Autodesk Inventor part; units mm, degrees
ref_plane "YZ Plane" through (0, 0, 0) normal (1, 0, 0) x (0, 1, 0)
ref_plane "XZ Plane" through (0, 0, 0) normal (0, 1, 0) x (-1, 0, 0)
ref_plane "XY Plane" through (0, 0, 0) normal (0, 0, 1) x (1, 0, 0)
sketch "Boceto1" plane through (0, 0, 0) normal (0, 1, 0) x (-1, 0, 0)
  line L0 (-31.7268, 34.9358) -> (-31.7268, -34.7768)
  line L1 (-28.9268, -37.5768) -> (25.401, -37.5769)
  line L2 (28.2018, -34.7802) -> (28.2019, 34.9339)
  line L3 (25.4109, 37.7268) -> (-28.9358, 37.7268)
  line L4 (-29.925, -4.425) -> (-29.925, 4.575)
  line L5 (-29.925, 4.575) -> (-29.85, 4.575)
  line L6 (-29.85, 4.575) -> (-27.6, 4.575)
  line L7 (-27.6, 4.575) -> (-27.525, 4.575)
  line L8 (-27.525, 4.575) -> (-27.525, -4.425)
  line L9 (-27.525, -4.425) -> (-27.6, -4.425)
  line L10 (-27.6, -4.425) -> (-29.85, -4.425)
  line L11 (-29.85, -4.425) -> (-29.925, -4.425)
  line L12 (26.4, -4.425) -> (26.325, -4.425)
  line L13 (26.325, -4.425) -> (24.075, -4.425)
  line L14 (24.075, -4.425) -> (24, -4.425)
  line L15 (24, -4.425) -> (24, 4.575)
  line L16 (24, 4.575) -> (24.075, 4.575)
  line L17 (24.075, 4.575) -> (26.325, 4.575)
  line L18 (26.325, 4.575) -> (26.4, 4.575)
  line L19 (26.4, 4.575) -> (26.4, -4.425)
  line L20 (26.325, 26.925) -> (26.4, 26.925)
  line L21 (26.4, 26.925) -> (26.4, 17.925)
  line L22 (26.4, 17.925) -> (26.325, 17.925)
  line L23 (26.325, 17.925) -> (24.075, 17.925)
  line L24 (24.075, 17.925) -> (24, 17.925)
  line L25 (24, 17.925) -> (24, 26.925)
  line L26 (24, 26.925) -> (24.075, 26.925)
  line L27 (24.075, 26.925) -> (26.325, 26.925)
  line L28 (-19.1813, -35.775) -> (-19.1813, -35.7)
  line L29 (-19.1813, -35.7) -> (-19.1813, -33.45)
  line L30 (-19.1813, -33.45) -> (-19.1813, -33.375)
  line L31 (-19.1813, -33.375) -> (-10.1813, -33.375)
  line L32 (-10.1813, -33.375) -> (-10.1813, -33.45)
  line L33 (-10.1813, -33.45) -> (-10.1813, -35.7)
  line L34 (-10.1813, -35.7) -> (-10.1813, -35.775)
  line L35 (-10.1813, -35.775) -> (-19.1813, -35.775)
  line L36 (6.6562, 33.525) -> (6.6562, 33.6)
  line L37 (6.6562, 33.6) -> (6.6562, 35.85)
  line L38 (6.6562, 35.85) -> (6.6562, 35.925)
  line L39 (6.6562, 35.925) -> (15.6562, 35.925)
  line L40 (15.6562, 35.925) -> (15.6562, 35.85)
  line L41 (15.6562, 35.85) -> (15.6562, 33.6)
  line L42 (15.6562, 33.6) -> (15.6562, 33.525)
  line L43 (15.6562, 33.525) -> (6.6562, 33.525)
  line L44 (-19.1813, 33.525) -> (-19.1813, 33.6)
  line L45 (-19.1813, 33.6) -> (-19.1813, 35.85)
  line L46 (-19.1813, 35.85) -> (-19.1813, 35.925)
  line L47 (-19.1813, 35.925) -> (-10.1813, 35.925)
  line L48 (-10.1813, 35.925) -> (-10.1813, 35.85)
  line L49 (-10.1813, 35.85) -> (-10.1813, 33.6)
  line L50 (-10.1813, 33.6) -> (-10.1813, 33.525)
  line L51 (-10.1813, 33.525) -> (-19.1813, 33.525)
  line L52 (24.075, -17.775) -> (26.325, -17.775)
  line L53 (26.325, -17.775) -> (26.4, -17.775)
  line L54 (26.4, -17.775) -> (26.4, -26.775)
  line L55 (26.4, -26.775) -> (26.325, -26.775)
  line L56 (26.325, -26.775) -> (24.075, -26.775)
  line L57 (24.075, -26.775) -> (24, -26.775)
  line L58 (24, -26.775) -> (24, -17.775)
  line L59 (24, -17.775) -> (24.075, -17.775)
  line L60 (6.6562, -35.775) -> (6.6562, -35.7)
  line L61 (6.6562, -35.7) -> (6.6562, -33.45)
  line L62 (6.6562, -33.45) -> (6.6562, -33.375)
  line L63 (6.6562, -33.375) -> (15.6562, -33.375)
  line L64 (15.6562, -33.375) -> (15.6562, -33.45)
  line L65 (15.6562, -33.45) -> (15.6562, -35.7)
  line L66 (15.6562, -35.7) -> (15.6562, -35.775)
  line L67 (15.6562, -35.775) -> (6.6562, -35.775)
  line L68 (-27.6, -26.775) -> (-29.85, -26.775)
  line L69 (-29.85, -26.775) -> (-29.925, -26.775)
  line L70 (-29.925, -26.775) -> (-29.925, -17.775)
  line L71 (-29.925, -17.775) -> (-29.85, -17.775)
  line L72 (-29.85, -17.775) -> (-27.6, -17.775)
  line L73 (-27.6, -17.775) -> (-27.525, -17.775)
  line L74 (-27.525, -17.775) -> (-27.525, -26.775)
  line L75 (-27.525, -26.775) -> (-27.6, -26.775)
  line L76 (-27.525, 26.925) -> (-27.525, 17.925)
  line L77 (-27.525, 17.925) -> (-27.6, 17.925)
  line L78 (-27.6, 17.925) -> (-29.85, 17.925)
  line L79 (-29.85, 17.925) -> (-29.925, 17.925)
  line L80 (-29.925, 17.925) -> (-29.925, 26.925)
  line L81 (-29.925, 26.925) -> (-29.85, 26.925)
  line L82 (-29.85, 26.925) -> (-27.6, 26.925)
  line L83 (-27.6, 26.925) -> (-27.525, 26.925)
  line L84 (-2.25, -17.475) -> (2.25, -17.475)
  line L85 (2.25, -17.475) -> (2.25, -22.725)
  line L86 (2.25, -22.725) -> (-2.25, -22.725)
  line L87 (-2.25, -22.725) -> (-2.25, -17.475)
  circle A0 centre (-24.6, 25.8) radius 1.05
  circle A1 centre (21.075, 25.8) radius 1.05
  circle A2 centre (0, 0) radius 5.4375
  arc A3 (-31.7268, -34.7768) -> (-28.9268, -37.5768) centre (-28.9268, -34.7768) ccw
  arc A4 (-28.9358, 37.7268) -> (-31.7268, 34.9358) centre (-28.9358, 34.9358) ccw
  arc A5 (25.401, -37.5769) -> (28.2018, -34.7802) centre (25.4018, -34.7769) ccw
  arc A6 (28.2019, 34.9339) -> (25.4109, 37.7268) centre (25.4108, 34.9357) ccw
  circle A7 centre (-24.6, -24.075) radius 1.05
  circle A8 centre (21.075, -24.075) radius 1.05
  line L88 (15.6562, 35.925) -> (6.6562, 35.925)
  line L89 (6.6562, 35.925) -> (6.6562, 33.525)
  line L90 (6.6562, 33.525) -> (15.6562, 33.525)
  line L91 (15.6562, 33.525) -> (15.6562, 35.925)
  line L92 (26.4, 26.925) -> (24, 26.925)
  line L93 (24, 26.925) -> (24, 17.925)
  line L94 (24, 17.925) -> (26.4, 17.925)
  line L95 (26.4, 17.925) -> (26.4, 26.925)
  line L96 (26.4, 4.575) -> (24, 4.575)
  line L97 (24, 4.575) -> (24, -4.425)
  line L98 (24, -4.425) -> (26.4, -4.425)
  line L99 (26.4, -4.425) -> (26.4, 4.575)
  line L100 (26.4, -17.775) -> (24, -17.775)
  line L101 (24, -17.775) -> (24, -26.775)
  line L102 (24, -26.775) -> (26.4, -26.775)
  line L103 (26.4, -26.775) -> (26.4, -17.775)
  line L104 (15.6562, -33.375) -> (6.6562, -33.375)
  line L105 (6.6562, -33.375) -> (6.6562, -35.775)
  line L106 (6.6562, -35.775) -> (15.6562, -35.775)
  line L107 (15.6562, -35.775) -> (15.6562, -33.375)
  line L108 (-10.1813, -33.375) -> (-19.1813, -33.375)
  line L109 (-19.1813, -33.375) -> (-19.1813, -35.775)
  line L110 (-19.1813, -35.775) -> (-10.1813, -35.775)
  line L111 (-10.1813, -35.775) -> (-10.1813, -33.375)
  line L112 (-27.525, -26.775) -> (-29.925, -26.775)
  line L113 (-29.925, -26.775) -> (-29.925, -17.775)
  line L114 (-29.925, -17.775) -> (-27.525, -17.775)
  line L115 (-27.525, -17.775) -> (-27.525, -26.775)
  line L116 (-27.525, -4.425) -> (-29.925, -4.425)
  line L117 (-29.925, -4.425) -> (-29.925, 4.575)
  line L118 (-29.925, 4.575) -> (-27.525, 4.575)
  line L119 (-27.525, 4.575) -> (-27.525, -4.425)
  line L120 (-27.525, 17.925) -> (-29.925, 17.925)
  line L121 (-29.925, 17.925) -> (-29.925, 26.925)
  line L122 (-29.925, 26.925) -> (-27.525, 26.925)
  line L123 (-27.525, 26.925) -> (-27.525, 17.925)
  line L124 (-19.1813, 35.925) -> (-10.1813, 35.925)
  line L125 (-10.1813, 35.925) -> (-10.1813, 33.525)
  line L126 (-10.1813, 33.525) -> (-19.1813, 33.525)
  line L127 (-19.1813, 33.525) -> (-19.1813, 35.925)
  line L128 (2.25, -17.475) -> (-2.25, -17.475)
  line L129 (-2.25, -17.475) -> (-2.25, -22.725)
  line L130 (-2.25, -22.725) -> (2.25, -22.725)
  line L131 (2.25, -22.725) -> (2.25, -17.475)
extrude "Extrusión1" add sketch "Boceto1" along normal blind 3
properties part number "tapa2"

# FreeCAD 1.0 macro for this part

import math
import FreeCAD as App
import Part
import Sketcher
from FreeCAD import Vector
Q = App.Units.Quantity

doc = App.newDocument("Part")
params = doc.addObject("Spreadsheet::Sheet", "Params")
for row, (alias, value) in enumerate([
    ("sketch1_diameter", "2.1 mm"),
    ("sketch1_radius", "2.8 mm"),
    ("sketch1_width", "9 mm"),
    ("sketch1_width2", "2.4 mm"),
    ("sketch1_width3", "4.5 mm"),
    ("pad1_length", "3 mm"),
], start=1):
    params.set(f"A{row}", alias)
    params.set(f"B{row}", "=" + value)
    params.setAlias(f"B{row}", alias)

body = doc.addObject("PartDesign::Body", "Body")

sketch1 = doc.addObject("Sketcher::SketchObject", "Sketch")
body.addObject(sketch1)
sketch1.AttachmentSupport = (doc.XZ_Plane, [""])
sketch1.MapMode = "FlatFace"
sketch1.addGeometry([
    Part.ArcOfCircle(Part.Circle(Vector(28.9, 34.9, 0), Vector(0, 0, 1), 2.8), math.radians(0), math.radians(90)),
    Part.LineSegment(Vector(31.7, 34.9, 0), Vector(31.7, -34.8, 0)),
    Part.ArcOfCircle(Part.Circle(Vector(28.9, -34.8, 0), Vector(0, 0, 1), 2.8), math.radians(-90), math.radians(0)),
    Part.LineSegment(Vector(28.9, -37.6, 0), Vector(-25.4, -37.6, 0)),
    Part.ArcOfCircle(Part.Circle(Vector(-25.4, -34.8, 0), Vector(0, 0, 1), 2.8), math.radians(-180), math.radians(-90)),
    Part.LineSegment(Vector(-28.2, -34.8, 0), Vector(-28.2, 34.9, 0)),
    Part.ArcOfCircle(Part.Circle(Vector(-25.4, 34.9, 0), Vector(0, 0, 1), 2.8), math.radians(90), math.radians(180)),
    Part.LineSegment(Vector(-25.4, 37.7, 0), Vector(28.9, 37.7, 0)),
    Part.Circle(Vector(24.6, -24.1, 0), Vector(0, 0, 1), 1.1),
    Part.LineSegment(Vector(27.5, -26.8, 0), Vector(29.9, -26.8, 0)),
    Part.LineSegment(Vector(29.9, -26.8, 0), Vector(29.9, -17.8, 0)),
    Part.LineSegment(Vector(29.9, -17.8, 0), Vector(27.5, -17.8, 0)),
    Part.LineSegment(Vector(27.5, -17.8, 0), Vector(27.5, -26.8, 0)),
    Part.LineSegment(Vector(10.2, -35.8, 0), Vector(19.2, -35.8, 0)),
    Part.LineSegment(Vector(19.2, -35.8, 0), Vector(19.2, -33.4, 0)),
    Part.LineSegment(Vector(19.2, -33.4, 0), Vector(10.2, -33.4, 0)),
    Part.LineSegment(Vector(10.2, -33.4, 0), Vector(10.2, -35.8, 0)),
    Part.LineSegment(Vector(-15.7, -35.8, 0), Vector(-6.7, -35.8, 0)),
    Part.LineSegment(Vector(-6.7, -35.8, 0), Vector(-6.7, -33.4, 0)),
    Part.LineSegment(Vector(-6.7, -33.4, 0), Vector(-15.7, -33.4, 0)),
    Part.LineSegment(Vector(-15.7, -33.4, 0), Vector(-15.7, -35.8, 0)),
    Part.LineSegment(Vector(2.2, -22.7, 0), Vector(2.2, -17.5, 0)),
    Part.LineSegment(Vector(2.2, -17.5, 0), Vector(-2.2, -17.5, 0)),
    Part.LineSegment(Vector(-2.2, -17.5, 0), Vector(-2.2, -22.7, 0)),
    Part.LineSegment(Vector(-2.2, -22.7, 0), Vector(2.2, -22.7, 0)),
    Part.Circle(Vector(-21.1, -24.1, 0), Vector(0, 0, 1), 1.1),
    Part.LineSegment(Vector(-24, -17.8, 0), Vector(-26.4, -17.8, 0)),
    Part.LineSegment(Vector(-26.4, -17.8, 0), Vector(-26.4, -26.8, 0)),
    Part.LineSegment(Vector(-26.4, -26.8, 0), Vector(-24, -26.8, 0)),
    Part.LineSegment(Vector(-24, -26.8, 0), Vector(-24, -17.8, 0)),
    Part.Circle(Vector(0, 0, 0), Vector(0, 0, 1), 5.4),
    Part.LineSegment(Vector(27.5, -4.4, 0), Vector(29.9, -4.4, 0)),
    Part.LineSegment(Vector(29.9, -4.4, 0), Vector(29.9, 4.6, 0)),
    Part.LineSegment(Vector(29.9, 4.6, 0), Vector(27.5, 4.6, 0)),
    Part.LineSegment(Vector(27.5, 4.6, 0), Vector(27.5, -4.4, 0)),
    Part.LineSegment(Vector(29.9, 26.9, 0), Vector(27.5, 26.9, 0)),
    Part.LineSegment(Vector(27.5, 26.9, 0), Vector(27.5, 17.9, 0)),
    Part.LineSegment(Vector(27.5, 17.9, 0), Vector(29.9, 17.9, 0)),
    Part.LineSegment(Vector(29.9, 17.9, 0), Vector(29.9, 26.9, 0)),
    Part.Circle(Vector(24.6, 25.8, 0), Vector(0, 0, 1), 1.1),
    Part.LineSegment(Vector(10.2, 33.5, 0), Vector(19.2, 33.5, 0)),
    Part.LineSegment(Vector(19.2, 33.5, 0), Vector(19.2, 35.9, 0)),
    Part.LineSegment(Vector(19.2, 35.9, 0), Vector(10.2, 35.9, 0)),
    Part.LineSegment(Vector(10.2, 35.9, 0), Vector(10.2, 33.5, 0)),
    Part.LineSegment(Vector(-26.4, 4.6, 0), Vector(-26.4, -4.4, 0)),
    Part.LineSegment(Vector(-26.4, -4.4, 0), Vector(-24, -4.4, 0)),
    Part.LineSegment(Vector(-24, -4.4, 0), Vector(-24, 4.6, 0)),
    Part.LineSegment(Vector(-24, 4.6, 0), Vector(-26.4, 4.6, 0)),
    Part.LineSegment(Vector(-15.7, 33.5, 0), Vector(-6.7, 33.5, 0)),
    Part.LineSegment(Vector(-6.7, 33.5, 0), Vector(-6.7, 35.9, 0)),
    Part.LineSegment(Vector(-6.7, 35.9, 0), Vector(-15.7, 35.9, 0)),
    Part.LineSegment(Vector(-15.7, 35.9, 0), Vector(-15.7, 33.5, 0)),
    Part.LineSegment(Vector(-24, 26.9, 0), Vector(-26.4, 26.9, 0)),
    Part.LineSegment(Vector(-26.4, 26.9, 0), Vector(-26.4, 17.9, 0)),
    Part.LineSegment(Vector(-26.4, 17.9, 0), Vector(-24, 17.9, 0)),
    Part.LineSegment(Vector(-24, 17.9, 0), Vector(-24, 26.9, 0)),
    Part.Circle(Vector(-21.1, 25.8, 0), Vector(0, 0, 1), 1.1),
], False)
sketch1.addConstraint([
    Sketcher.Constraint("Tangent", 0, 1, 1, 1),
    Sketcher.Constraint("Tangent", 1, 2, 2, 2),
    Sketcher.Constraint("Tangent", 2, 1, 3, 1),
    Sketcher.Constraint("Tangent", 3, 2, 4, 2),
    Sketcher.Constraint("Coincident", 4, 1, 5, 1),
    Sketcher.Constraint("Coincident", 5, 2, 6, 2),
    Sketcher.Constraint("Tangent", 6, 1, 7, 1),
    Sketcher.Constraint("Tangent", 7, 2, 0, 2),
    Sketcher.Constraint("Coincident", 9, 2, 10, 1),
    Sketcher.Constraint("Coincident", 10, 2, 11, 1),
    Sketcher.Constraint("Coincident", 11, 2, 12, 1),
    Sketcher.Constraint("Coincident", 12, 2, 9, 1),
    Sketcher.Constraint("Coincident", 13, 2, 14, 1),
    Sketcher.Constraint("Coincident", 14, 2, 15, 1),
    Sketcher.Constraint("Coincident", 15, 2, 16, 1),
    Sketcher.Constraint("Coincident", 16, 2, 13, 1),
    Sketcher.Constraint("Coincident", 17, 2, 18, 1),
    Sketcher.Constraint("Coincident", 18, 2, 19, 1),
    Sketcher.Constraint("Coincident", 19, 2, 20, 1),
    Sketcher.Constraint("Coincident", 20, 2, 17, 1),
    Sketcher.Constraint("Coincident", 21, 2, 22, 1),
    Sketcher.Constraint("Coincident", 22, 2, 23, 1),
    Sketcher.Constraint("Coincident", 23, 2, 24, 1),
    Sketcher.Constraint("Coincident", 24, 2, 21, 1),
    Sketcher.Constraint("Coincident", 26, 2, 27, 1),
    Sketcher.Constraint("Coincident", 27, 2, 28, 1),
    Sketcher.Constraint("Coincident", 28, 2, 29, 1),
    Sketcher.Constraint("Coincident", 29, 2, 26, 1),
    Sketcher.Constraint("Coincident", 31, 2, 32, 1),
    Sketcher.Constraint("Coincident", 32, 2, 33, 1),
    Sketcher.Constraint("Coincident", 33, 2, 34, 1),
    Sketcher.Constraint("Coincident", 34, 2, 31, 1),
    Sketcher.Constraint("Coincident", 35, 2, 36, 1),
    Sketcher.Constraint("Coincident", 36, 2, 37, 1),
    Sketcher.Constraint("Coincident", 37, 2, 38, 1),
    Sketcher.Constraint("Coincident", 38, 2, 35, 1),
    Sketcher.Constraint("Coincident", 40, 2, 41, 1),
    Sketcher.Constraint("Coincident", 41, 2, 42, 1),
    Sketcher.Constraint("Coincident", 42, 2, 43, 1),
    Sketcher.Constraint("Coincident", 43, 2, 40, 1),
    Sketcher.Constraint("Coincident", 44, 2, 45, 1),
    Sketcher.Constraint("Coincident", 45, 2, 46, 1),
    Sketcher.Constraint("Coincident", 46, 2, 47, 1),
    Sketcher.Constraint("Coincident", 47, 2, 44, 1),
    Sketcher.Constraint("Coincident", 48, 2, 49, 1),
    Sketcher.Constraint("Coincident", 49, 2, 50, 1),
    Sketcher.Constraint("Coincident", 50, 2, 51, 1),
    Sketcher.Constraint("Coincident", 51, 2, 48, 1),
    Sketcher.Constraint("Coincident", 52, 2, 53, 1),
    Sketcher.Constraint("Coincident", 53, 2, 54, 1),
    Sketcher.Constraint("Coincident", 54, 2, 55, 1),
    Sketcher.Constraint("Coincident", 55, 2, 52, 1),
    Sketcher.Constraint("Vertical", 1),
    Sketcher.Constraint("Horizontal", 3),
    Sketcher.Constraint("Vertical", 5),
    Sketcher.Constraint("Horizontal", 7),
    Sketcher.Constraint("Horizontal", 9),
    Sketcher.Constraint("Vertical", 10),
    Sketcher.Constraint("Horizontal", 11),
    Sketcher.Constraint("Vertical", 12),
    Sketcher.Constraint("Horizontal", 13),
    Sketcher.Constraint("Vertical", 14),
    Sketcher.Constraint("Horizontal", 15),
    Sketcher.Constraint("Vertical", 16),
    Sketcher.Constraint("Horizontal", 17),
    Sketcher.Constraint("Vertical", 18),
    Sketcher.Constraint("Horizontal", 19),
    Sketcher.Constraint("Vertical", 20),
    Sketcher.Constraint("Vertical", 21),
    Sketcher.Constraint("Horizontal", 22),
    Sketcher.Constraint("Vertical", 23),
    Sketcher.Constraint("Horizontal", 24),
    Sketcher.Constraint("Horizontal", 26),
    Sketcher.Constraint("Vertical", 27),
    Sketcher.Constraint("Horizontal", 28),
    Sketcher.Constraint("Vertical", 29),
    Sketcher.Constraint("Horizontal", 31),
    Sketcher.Constraint("Vertical", 32),
    Sketcher.Constraint("Horizontal", 33),
    Sketcher.Constraint("Vertical", 34),
    Sketcher.Constraint("Horizontal", 35),
    Sketcher.Constraint("Vertical", 36),
    Sketcher.Constraint("Horizontal", 37),
    Sketcher.Constraint("Vertical", 38),
    Sketcher.Constraint("Horizontal", 40),
    Sketcher.Constraint("Vertical", 41),
    Sketcher.Constraint("Horizontal", 42),
    Sketcher.Constraint("Vertical", 43),
    Sketcher.Constraint("Vertical", 44),
    Sketcher.Constraint("Horizontal", 45),
    Sketcher.Constraint("Vertical", 46),
    Sketcher.Constraint("Horizontal", 47),
    Sketcher.Constraint("Horizontal", 48),
    Sketcher.Constraint("Vertical", 49),
    Sketcher.Constraint("Horizontal", 50),
    Sketcher.Constraint("Vertical", 51),
    Sketcher.Constraint("Horizontal", 52),
    Sketcher.Constraint("Vertical", 53),
    Sketcher.Constraint("Horizontal", 54),
    Sketcher.Constraint("Vertical", 55),
    Sketcher.Constraint("Coincident", 30, 3, -1, 1),
    Sketcher.Constraint("Equal", 2, 4),
    Sketcher.Constraint("Equal", 0, 6),
    Sketcher.Constraint("Equal", 8, 25),
    Sketcher.Constraint("Equal", 25, 39),
    Sketcher.Constraint("Equal", 39, 56),
    Sketcher.Constraint("Horizontal", 8, 3, 25, 3),
    Sketcher.Constraint("Horizontal", 39, 3, 56, 3),
    Sketcher.Constraint("Horizontal", 16, 2, 17, 2),
    Sketcher.Constraint("Horizontal", 15, 2, 18, 2),
    Sketcher.Constraint("Horizontal", 11, 2, 26, 2),
    Sketcher.Constraint("Horizontal", 12, 2, 27, 2),
    Sketcher.Constraint("Horizontal", 34, 2, 44, 2),
    Sketcher.Constraint("Horizontal", 33, 2, 46, 2),
    Sketcher.Constraint("Horizontal", 43, 2, 48, 2),
    Sketcher.Constraint("Horizontal", 42, 2, 49, 2),
    Sketcher.Constraint("Horizontal", 38, 2, 52, 2),
    Sketcher.Constraint("Horizontal", 37, 2, 53, 2),
    Sketcher.Constraint("Vertical", 8, 3, 39, 3),
    Sketcher.Constraint("Vertical", 25, 3, 56, 3),
    Sketcher.Constraint("Vertical", 10, 2, 31, 2),
    Sketcher.Constraint("Vertical", 12, 2, 33, 2),
    Sketcher.Constraint("Vertical", 34, 2, 35, 2),
    Sketcher.Constraint("Vertical", 32, 2, 37, 2),
    Sketcher.Constraint("Vertical", 14, 2, 40, 2),
    Sketcher.Constraint("Vertical", 16, 2, 42, 2),
    Sketcher.Constraint("Vertical", 27, 2, 44, 2),
    Sketcher.Constraint("Vertical", 29, 2, 45, 2),
    Sketcher.Constraint("Vertical", 18, 2, 48, 2),
    Sketcher.Constraint("Vertical", 20, 2, 50, 2),
    Sketcher.Constraint("Vertical", 47, 2, 52, 2),
    Sketcher.Constraint("Vertical", 46, 2, 54, 2),
    Sketcher.Constraint("Equal", 15, 17),
    Sketcher.Constraint("Equal", 11, 26),
    Sketcher.Constraint("Equal", 50, 10),
    Sketcher.Constraint("Equal", 54, 14),
    Sketcher.Constraint("Equal", 29, 32),
    Sketcher.Constraint("Equal", 34, 36),
    Sketcher.Constraint("Equal", 20, 41),
    Sketcher.Constraint("Diameter", 8, Q("2.1 mm")),
    Sketcher.Constraint("Radius", 2, Q("2.8 mm")),
    Sketcher.Constraint("DistanceX", 13, 1, 13, 2, Q("9 mm")),
    Sketcher.Constraint("Diameter", 30, Q("10.875 mm")),
    Sketcher.Constraint("DistanceX", 9, 1, 9, 2, Q("2.4 mm")),
    Sketcher.Constraint("DistanceX", 22, 2, 22, 1, Q("4.5 mm")),
    Sketcher.Constraint("DistanceX", 28, 2, -1, 1, Q("24 mm")),
    Sketcher.Constraint("Radius", 0, Q("2.791 mm")),
    Sketcher.Constraint("DistanceY", 21, 1, 21, 2, Q("5.25 mm")),
    Sketcher.Constraint("DistanceX", -1, 1, 8, 3, Q("24.6 mm")),
    Sketcher.Constraint("DistanceY", -1, 1, 39, 3, Q("25.8 mm")),
    Sketcher.Constraint("DistanceY", 5, 1, 5, 2, Q("69.714 mm")),
    Sketcher.Constraint("DistanceX", -1, 1, 21, 2, Q("2.25 mm")),
    Sketcher.Constraint("DistanceX", 3, 2, 3, 1, Q("54.3278 mm")),
    Sketcher.Constraint("DistanceY", 1, 2, 1, 1, Q("69.7126 mm")),
    Sketcher.Constraint("DistanceY", 4, 3, -1, 1, Q("34.777 mm")),
    Sketcher.Constraint("DistanceY", 8, 3, -1, 1, Q("24.075 mm")),
    Sketcher.Constraint("DistanceX", 25, 3, -1, 1, Q("21.075 mm")),
    Sketcher.Constraint("DistanceX", 3, 2, -1, 1, Q("25.401 mm")),
    Sketcher.Constraint("DistanceY", -1, 1, 5, 2, Q("34.934 mm")),
    Sketcher.Constraint("DistanceX", -1, 1, 9, 2, Q("29.925 mm")),
    Sketcher.Constraint("DistanceY", 9, 2, -1, 1, Q("26.775 mm")),
    Sketcher.Constraint("DistanceY", 13, 2, -1, 1, Q("35.775 mm")),
    Sketcher.Constraint("DistanceY", 21, 2, -1, 1, Q("17.475 mm")),
    Sketcher.Constraint("DistanceY", 31, 2, -1, 1, Q("4.425 mm")),
    Sketcher.Constraint("DistanceY", -1, 1, 35, 2, Q("26.925 mm")),
    Sketcher.Constraint("DistanceY", -1, 1, 40, 2, Q("33.525 mm")),
    Sketcher.Constraint("DistanceX", -1, 1, 13, 2, Q("19.1813 mm")),
    Sketcher.Constraint("DistanceX", 17, 2, -1, 1, Q("6.6562 mm")),
])
sketch1.setExpression("Constraints[139]", "Params.sketch1_diameter")
sketch1.setExpression("Constraints[140]", "Params.sketch1_radius")
sketch1.setExpression("Constraints[141]", "Params.sketch1_width")
sketch1.setExpression("Constraints[143]", "Params.sketch1_width2")
sketch1.setExpression("Constraints[144]", "Params.sketch1_width3")
pad1 = doc.addObject("PartDesign::Pad", "Pad")
body.addObject(pad1)
pad1.Profile = sketch1
pad1.setExpression("Length", "Params.pad1_length")
pad1.Reversed = True

doc.recompute()
